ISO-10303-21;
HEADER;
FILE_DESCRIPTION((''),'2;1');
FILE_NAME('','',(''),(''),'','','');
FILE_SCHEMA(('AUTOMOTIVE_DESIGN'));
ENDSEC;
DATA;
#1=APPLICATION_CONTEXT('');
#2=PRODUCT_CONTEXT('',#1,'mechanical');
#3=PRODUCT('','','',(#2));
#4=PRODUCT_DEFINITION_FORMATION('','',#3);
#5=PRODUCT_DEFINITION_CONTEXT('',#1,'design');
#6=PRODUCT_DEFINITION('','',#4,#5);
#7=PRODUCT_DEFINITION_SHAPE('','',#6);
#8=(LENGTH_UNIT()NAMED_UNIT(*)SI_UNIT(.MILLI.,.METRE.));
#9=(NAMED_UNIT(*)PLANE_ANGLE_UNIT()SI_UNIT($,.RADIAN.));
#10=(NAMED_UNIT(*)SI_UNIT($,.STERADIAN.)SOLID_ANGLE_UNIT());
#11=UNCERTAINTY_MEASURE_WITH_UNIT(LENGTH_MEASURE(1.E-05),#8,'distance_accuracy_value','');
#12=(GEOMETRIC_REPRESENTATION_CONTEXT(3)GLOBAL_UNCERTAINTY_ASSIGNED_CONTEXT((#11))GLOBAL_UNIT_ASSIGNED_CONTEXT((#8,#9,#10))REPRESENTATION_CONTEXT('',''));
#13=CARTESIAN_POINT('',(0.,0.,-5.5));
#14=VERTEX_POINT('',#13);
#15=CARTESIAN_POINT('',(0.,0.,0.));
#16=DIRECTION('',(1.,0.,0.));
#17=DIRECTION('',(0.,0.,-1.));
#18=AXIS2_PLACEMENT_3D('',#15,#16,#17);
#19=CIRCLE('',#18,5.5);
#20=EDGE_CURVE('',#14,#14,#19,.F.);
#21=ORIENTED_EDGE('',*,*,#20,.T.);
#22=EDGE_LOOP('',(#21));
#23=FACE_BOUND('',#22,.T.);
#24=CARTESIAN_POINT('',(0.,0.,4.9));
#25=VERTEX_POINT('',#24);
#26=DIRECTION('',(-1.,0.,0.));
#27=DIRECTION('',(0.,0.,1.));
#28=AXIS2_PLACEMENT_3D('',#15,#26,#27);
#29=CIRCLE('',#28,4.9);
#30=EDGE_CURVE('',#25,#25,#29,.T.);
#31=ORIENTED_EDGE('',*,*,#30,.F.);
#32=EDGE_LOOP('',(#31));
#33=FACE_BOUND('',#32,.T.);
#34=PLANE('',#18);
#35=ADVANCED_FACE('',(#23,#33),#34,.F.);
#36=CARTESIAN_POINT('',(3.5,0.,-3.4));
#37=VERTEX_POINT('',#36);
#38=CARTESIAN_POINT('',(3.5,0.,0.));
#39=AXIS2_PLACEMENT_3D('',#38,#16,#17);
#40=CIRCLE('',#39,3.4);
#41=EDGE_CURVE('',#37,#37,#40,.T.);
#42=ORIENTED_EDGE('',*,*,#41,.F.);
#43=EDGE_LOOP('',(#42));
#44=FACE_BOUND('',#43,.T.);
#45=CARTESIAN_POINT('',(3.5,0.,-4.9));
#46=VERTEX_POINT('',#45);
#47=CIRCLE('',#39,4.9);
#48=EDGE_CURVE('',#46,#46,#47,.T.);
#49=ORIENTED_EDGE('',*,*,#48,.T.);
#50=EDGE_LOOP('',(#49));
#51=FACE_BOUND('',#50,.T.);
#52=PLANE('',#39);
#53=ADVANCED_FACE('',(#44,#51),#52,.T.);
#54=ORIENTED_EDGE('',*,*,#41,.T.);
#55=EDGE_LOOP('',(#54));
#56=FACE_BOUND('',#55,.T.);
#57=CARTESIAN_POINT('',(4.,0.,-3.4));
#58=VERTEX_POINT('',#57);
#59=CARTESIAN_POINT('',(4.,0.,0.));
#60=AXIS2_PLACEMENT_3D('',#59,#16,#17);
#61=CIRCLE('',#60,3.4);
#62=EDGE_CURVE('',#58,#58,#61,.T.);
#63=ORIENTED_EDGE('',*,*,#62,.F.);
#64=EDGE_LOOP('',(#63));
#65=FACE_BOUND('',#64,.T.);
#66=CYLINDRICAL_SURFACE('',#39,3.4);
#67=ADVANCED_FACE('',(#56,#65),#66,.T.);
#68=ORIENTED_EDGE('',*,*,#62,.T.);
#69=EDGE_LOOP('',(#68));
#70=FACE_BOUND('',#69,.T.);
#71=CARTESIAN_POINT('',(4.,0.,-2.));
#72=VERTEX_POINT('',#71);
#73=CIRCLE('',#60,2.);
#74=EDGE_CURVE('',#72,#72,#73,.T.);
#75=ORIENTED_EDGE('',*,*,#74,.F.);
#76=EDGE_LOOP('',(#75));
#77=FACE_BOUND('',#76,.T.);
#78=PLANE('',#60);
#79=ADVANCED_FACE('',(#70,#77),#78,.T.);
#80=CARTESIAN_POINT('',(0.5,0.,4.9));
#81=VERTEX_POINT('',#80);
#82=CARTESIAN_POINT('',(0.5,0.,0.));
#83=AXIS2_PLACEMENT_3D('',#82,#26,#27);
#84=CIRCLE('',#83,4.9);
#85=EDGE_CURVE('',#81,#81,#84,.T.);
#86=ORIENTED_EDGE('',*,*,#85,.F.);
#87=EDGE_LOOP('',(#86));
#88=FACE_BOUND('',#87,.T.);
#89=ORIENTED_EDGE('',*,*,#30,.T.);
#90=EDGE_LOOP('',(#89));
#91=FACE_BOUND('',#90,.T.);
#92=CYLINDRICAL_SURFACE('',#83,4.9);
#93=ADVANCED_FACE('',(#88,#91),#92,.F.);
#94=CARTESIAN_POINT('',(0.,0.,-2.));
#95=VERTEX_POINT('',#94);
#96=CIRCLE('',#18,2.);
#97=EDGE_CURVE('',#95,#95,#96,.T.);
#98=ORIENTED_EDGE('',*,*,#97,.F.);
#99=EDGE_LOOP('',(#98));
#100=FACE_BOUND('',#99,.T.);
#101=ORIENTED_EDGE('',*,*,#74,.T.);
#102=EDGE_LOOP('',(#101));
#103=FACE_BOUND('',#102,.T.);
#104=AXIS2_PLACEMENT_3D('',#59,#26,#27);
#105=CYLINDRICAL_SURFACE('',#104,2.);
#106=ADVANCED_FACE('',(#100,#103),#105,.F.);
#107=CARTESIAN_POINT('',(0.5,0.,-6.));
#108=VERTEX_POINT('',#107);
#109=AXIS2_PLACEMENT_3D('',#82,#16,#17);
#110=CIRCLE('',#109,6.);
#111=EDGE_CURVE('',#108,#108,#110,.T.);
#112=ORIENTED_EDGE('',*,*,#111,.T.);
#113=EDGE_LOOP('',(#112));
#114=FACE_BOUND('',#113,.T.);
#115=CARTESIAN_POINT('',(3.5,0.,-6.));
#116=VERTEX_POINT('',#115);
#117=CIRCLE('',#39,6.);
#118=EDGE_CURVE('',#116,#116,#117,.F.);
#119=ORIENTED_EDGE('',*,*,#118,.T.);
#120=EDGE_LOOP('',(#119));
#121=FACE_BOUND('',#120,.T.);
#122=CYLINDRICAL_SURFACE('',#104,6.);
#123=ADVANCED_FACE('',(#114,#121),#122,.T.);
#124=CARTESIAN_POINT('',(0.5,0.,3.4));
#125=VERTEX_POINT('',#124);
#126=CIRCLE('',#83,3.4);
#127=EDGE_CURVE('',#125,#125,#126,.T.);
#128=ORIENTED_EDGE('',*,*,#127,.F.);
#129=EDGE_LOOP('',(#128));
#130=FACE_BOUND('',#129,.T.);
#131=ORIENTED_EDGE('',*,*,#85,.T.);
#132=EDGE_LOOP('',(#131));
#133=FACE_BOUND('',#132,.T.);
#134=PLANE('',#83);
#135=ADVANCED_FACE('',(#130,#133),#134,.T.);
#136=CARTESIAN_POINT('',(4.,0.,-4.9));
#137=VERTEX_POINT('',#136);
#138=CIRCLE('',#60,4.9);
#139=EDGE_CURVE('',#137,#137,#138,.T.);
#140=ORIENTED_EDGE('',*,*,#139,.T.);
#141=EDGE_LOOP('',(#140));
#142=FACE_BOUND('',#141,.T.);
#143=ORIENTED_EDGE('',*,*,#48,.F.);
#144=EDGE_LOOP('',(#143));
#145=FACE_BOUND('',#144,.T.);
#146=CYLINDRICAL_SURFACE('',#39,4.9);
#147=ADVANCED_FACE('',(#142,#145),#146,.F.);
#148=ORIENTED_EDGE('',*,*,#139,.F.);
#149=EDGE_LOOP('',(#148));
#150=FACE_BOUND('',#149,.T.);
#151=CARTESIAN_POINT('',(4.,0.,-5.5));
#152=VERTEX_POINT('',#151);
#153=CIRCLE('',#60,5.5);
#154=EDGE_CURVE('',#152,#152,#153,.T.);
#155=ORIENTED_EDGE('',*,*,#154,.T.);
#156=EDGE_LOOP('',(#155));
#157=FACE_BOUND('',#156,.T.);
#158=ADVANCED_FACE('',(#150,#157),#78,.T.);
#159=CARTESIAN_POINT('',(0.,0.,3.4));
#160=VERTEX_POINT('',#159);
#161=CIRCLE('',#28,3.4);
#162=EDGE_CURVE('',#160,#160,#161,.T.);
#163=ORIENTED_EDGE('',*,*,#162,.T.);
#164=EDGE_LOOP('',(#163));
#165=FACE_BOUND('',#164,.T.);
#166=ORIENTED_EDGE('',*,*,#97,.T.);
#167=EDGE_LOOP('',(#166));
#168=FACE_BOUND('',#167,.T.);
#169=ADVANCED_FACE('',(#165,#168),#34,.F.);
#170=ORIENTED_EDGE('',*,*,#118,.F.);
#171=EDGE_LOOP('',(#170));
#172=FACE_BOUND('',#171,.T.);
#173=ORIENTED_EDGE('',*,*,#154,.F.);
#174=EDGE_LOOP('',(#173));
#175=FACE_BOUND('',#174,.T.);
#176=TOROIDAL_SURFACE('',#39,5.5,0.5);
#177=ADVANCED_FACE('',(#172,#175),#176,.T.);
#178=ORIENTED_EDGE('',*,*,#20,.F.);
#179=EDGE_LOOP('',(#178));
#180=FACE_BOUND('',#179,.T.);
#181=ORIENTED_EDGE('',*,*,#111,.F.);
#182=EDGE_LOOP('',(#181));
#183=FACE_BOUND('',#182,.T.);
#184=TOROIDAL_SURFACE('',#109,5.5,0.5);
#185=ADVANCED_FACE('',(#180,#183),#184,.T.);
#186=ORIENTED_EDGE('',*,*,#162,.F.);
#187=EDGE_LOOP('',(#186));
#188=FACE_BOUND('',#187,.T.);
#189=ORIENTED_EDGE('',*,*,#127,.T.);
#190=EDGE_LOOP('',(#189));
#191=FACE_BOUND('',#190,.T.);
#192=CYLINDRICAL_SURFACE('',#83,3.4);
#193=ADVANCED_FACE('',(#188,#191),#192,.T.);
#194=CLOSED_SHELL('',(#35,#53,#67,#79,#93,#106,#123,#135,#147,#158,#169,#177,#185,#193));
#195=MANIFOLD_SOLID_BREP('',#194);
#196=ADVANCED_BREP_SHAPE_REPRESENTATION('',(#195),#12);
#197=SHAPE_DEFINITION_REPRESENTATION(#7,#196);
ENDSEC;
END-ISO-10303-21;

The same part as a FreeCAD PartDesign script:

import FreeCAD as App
import Part
import Sketcher

V = App.Vector
Q = App.Units.Quantity


def edges_at(feature, points):
    """Names of the edges that pass closest to the given points."""
    edges = feature.Shape.Edges
    near = lambda p: min(range(len(edges)), key=lambda i: edges[i].distToShape(Part.Vertex(*p))[0])
    return sorted({f"Edge{near(p) + 1}" for p in points})

doc = App.newDocument("Part")
body = doc.addObject("PartDesign::Body", "Body")

sketch1 = body.newObject("Sketcher::SketchObject", "Sketch")
sketch1.AttachmentSupport = (doc.getObject("YZ_Plane"), [""])
sketch1.MapMode = "FlatFace"
sketch1.addGeometry([
    Part.Circle(V(0, 0, 0), V(0, 0, 1), 6),
    Part.Circle(V(0, 0, 0), V(0, 0, 1), 2),
], False)
sketch1.addConstraint([
    Sketcher.Constraint("Coincident", 0, 3, -1, 1),
    Sketcher.Constraint("Coincident", 1, 3, -1, 1),
    Sketcher.Constraint("Diameter", 0, Q("12 mm")),
    Sketcher.Constraint("Diameter", 1, Q("4 mm")),
])
pad1 = body.newObject("PartDesign::Pad", "Pad")
pad1.Profile = sketch1
pad1.Length = 4
doc.recompute()

fillet = body.newObject("PartDesign::Fillet", "Fillet")
fillet.Base = (pad1, edges_at(pad1, [(0, 0, 6), (4, 0, 6)]))
fillet.Radius = 0.5

sketch2 = body.newObject("Sketcher::SketchObject", "Sketch001")
sketch2.AttachmentSupport = (doc.getObject("YZ_Plane"), [""])
sketch2.MapMode = "FlatFace"
sketch2.AttachmentOffset = App.Placement(V(0, 0, 4), App.Rotation())
sketch2.addGeometry([
    Part.Circle(V(0, 0, 0), V(0, 0, 1), 4.9),
    Part.Circle(V(0, 0, 0), V(0, 0, 1), 3.4),
], False)
sketch2.addConstraint([
    Sketcher.Constraint("Coincident", 0, 3, -1, 1),
    Sketcher.Constraint("Coincident", 1, 3, -1, 1),
    Sketcher.Constraint("Diameter", 0, Q("9.8 mm")),
    Sketcher.Constraint("Diameter", 1, Q("6.8 mm")),
])
pocket1 = body.newObject("PartDesign::Pocket", "Pocket")
pocket1.Profile = sketch2
pocket1.Length = 0.5

sketch3 = body.newObject("Sketcher::SketchObject", "Sketch002")
sketch3.AttachmentSupport = (doc.getObject("YZ_Plane"), [""])
sketch3.MapMode = "FlatFace"
sketch3.addGeometry([
    Part.Circle(V(0, 0, 0), V(0, 0, 1), 4.9),
    Part.Circle(V(0, 0, 0), V(0, 0, 1), 3.4),
], False)
sketch3.addConstraint([
    Sketcher.Constraint("Coincident", 0, 3, -1, 1),
    Sketcher.Constraint("Coincident", 1, 3, -1, 1),
    Sketcher.Constraint("Diameter", 0, Q("9.8 mm")),
    Sketcher.Constraint("Diameter", 1, Q("6.8 mm")),
])
pocket2 = body.newObject("PartDesign::Pocket", "Pocket001")
pocket2.Profile = sketch3
pocket2.Length = 0.5
pocket2.Reversed = True

doc.recompute()
